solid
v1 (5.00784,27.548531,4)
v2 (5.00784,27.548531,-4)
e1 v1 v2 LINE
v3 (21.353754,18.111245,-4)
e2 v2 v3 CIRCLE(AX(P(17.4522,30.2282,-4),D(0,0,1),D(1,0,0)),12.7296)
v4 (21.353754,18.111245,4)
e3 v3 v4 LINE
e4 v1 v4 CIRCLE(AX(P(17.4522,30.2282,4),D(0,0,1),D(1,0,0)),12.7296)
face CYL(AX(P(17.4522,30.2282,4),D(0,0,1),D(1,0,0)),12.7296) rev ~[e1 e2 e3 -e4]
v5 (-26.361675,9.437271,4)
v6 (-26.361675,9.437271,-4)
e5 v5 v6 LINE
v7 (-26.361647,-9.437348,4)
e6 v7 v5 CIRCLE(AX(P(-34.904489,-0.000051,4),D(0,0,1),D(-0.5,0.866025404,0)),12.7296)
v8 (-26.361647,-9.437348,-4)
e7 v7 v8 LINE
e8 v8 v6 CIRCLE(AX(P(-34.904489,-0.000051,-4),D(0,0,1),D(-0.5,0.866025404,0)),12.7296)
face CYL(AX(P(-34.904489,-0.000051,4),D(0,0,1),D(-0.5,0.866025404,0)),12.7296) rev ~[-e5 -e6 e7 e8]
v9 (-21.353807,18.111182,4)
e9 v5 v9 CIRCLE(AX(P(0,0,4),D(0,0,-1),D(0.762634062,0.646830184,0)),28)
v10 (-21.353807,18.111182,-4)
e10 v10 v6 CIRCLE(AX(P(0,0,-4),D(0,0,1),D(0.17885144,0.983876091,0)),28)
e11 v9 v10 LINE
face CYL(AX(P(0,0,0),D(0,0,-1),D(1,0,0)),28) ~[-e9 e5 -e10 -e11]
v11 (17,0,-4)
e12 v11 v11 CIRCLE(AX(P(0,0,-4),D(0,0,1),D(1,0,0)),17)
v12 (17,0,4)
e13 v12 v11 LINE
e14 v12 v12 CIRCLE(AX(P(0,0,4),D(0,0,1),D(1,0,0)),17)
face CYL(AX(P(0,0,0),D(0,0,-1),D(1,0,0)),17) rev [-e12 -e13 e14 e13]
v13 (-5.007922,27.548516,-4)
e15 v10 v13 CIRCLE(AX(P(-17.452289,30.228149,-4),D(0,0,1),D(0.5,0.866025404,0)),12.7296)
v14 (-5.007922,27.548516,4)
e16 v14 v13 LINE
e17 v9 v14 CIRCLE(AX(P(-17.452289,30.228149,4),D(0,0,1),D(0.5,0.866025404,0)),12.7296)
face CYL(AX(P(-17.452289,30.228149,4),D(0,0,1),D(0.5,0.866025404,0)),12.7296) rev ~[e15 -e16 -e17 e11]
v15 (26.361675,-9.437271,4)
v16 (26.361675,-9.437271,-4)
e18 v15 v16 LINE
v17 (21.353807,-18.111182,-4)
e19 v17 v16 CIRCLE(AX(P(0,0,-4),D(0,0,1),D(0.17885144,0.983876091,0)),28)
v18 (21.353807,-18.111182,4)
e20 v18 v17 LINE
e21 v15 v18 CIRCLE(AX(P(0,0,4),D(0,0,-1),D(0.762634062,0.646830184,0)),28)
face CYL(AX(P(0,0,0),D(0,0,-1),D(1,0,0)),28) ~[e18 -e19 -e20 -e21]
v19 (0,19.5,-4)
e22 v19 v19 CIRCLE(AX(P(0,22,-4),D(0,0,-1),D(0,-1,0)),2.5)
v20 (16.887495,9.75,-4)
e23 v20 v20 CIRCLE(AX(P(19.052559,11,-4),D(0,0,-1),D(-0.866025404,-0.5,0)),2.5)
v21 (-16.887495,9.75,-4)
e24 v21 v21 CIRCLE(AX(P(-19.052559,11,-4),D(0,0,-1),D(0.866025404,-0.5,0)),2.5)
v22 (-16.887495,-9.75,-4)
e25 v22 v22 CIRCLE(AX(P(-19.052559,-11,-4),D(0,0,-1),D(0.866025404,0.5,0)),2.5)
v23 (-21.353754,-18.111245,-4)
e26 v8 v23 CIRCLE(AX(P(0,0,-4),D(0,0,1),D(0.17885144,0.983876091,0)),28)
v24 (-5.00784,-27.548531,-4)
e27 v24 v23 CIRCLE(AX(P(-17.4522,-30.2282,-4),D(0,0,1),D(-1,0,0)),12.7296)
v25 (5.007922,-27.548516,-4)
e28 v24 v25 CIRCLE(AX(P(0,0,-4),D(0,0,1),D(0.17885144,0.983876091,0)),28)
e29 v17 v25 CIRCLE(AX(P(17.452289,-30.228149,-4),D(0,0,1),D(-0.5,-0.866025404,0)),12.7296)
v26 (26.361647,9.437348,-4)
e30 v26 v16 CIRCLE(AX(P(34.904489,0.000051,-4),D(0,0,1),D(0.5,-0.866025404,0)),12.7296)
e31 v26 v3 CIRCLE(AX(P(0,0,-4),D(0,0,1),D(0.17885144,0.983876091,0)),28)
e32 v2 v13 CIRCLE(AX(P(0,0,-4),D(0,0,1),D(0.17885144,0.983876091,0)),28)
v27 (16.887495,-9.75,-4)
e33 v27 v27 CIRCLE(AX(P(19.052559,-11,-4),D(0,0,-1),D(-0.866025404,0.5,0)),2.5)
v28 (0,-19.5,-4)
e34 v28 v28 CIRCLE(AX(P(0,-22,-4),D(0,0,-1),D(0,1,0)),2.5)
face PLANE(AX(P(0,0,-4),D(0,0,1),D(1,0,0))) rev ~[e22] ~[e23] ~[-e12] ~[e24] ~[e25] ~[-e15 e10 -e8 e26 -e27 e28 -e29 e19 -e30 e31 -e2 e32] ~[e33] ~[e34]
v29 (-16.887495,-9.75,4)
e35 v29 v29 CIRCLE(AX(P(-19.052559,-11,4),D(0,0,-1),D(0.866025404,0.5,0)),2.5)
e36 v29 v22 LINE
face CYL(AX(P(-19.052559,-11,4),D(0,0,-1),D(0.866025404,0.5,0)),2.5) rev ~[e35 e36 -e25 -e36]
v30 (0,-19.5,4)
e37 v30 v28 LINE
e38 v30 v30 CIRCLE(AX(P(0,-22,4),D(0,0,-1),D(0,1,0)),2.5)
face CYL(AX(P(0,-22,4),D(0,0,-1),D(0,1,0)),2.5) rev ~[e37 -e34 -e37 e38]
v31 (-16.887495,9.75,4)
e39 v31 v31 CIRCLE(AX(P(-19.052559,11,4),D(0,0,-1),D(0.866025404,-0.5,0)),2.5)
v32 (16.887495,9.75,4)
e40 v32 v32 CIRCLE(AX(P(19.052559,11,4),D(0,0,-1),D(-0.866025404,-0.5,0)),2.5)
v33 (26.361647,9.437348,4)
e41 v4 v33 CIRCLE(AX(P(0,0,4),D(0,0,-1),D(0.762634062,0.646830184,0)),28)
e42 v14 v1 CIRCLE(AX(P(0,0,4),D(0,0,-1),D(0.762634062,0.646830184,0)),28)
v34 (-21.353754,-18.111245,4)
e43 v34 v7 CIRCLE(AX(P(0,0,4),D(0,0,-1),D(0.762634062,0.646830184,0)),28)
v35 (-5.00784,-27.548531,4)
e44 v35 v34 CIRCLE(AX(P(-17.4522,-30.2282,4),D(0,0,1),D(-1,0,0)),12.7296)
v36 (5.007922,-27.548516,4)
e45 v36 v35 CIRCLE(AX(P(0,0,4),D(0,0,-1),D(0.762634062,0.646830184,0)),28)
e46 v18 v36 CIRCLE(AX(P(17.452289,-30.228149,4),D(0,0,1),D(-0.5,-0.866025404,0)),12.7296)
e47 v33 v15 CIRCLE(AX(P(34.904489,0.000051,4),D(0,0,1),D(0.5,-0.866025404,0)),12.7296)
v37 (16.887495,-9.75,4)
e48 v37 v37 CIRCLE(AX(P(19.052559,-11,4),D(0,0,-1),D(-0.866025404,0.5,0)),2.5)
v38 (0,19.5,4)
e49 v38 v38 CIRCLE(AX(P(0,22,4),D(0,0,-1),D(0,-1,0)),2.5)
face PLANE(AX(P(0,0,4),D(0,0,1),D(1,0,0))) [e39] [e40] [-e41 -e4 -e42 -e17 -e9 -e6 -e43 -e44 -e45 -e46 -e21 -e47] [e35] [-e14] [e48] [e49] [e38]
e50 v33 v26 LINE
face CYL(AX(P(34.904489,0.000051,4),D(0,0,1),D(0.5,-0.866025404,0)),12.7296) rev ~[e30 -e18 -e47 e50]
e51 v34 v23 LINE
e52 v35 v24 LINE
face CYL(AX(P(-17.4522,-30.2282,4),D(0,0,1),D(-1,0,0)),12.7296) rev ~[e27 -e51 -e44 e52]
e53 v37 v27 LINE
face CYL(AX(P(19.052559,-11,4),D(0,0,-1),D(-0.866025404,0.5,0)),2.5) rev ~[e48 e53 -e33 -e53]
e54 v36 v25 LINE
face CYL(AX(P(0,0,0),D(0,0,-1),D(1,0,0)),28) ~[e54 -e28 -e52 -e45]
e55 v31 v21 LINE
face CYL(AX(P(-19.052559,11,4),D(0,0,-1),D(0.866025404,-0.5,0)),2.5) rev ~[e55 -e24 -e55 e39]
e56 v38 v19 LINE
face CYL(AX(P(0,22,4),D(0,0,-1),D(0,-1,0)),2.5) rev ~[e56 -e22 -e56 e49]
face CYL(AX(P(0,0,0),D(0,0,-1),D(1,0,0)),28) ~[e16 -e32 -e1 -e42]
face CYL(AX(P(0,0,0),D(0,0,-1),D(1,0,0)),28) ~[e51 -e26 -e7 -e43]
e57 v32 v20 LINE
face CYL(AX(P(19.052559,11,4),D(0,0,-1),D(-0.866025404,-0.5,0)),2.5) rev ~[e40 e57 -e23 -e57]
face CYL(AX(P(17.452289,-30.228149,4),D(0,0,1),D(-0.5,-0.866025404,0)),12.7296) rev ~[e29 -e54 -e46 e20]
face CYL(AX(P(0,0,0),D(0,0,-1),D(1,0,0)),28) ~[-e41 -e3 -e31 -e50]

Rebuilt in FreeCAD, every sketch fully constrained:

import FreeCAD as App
import Part
import Sketcher
from FreeCAD import Vector
Q = App.Units.Quantity

doc = App.newDocument("Part")
body = doc.addObject("PartDesign::Body", "Body")

# Sketch on XY plane
sketch1 = body.newObject("Sketcher::SketchObject", "Sketch")
sketch1.AttachmentSupport = (doc.getObject("XY_Plane"), [""])
sketch1.MapMode = "FlatFace"
sketch1.addGeometry([
    Part.Circle(Vector(0, 0, 0), Vector(0, 0, 1), 28),
    Part.Circle(Vector(0, 0, 0), Vector(0, 0, 1), 17),
], False)
sketch1.addConstraint([
    Sketcher.Constraint("Coincident", 0, 3, -1, 1),
    Sketcher.Constraint("Coincident", 1, 3, -1, 1),
    Sketcher.Constraint("Diameter", 0, Q("56 mm")),
    Sketcher.Constraint("Diameter", 1, Q("34 mm")),
])
pad1 = body.newObject("PartDesign::Pad", "Pad")
pad1.Profile = sketch1
pad1.Length = 8
pad1.Midplane = True

# Sketch on XY plane
sketch2 = body.newObject("Sketcher::SketchObject", "Sketch001")
sketch2.AttachmentSupport = (doc.getObject("XY_Plane"), [""])
sketch2.MapMode = "FlatFace"
sketch2.AttachmentOffset = App.Placement(Vector(0, 0, 4), App.Rotation())
sketch2.addGeometry(Part.Circle(Vector(0, 22, 0), Vector(0, 0, 1), 2.5), False)
sketch2.addConstraint([
    Sketcher.Constraint("PointOnObject", 0, 3, -2),
    Sketcher.Constraint("Diameter", 0, Q("5 mm")),
    Sketcher.Constraint("DistanceY", -1, 1, 0, 3, Q("22 mm")),
])
doc.recompute()
hole = body.newObject("PartDesign::Hole", "Hole")
hole.Profile = sketch2
hole.ThreadType = "None"
hole.Diameter = 5
hole.DepthType = "ThroughAll"
doc.recompute()

polarpattern = body.newObject("PartDesign::PolarPattern", "PolarPattern")
polarpattern.Originals = [hole]
polarpattern.Axis = (doc.getObject("Z_Axis"), [""])
polarpattern.Angle = 360
polarpattern.Occurrences = 6
body.Tip = polarpattern

# Sketch on XY plane
sketch3 = body.newObject("Sketcher::SketchObject", "Sketch002")
sketch3.AttachmentSupport = (doc.getObject("XY_Plane"), [""])
sketch3.MapMode = "FlatFace"
sketch3.AttachmentOffset = App.Placement(Vector(0, 0, 4), App.Rotation())
sketch3.addGeometry(Part.Circle(Vector(17.4522, 30.2282, 0), Vector(0, 0, 1), 12.7296), False)
sketch3.addConstraint([
    Sketcher.Constraint("Diameter", 0, Q("25.4592 mm")),
    Sketcher.Constraint("DistanceX", -1, 1, 0, 3, Q("17.4522 mm")),
    Sketcher.Constraint("DistanceY", -1, 1, 0, 3, Q("30.2282 mm")),
])
pocket1 = body.newObject("PartDesign::Pocket", "Pocket")
pocket1.Profile = sketch3
pocket1.Length = 8
doc.recompute()

polarpattern2 = body.newObject("PartDesign::PolarPattern", "PolarPattern001")
polarpattern2.Originals = [pocket1]
polarpattern2.Axis = (doc.getObject("Z_Axis"), [""])
polarpattern2.Angle = 360
polarpattern2.Occurrences = 6
body.Tip = polarpattern2

doc.recompute()
